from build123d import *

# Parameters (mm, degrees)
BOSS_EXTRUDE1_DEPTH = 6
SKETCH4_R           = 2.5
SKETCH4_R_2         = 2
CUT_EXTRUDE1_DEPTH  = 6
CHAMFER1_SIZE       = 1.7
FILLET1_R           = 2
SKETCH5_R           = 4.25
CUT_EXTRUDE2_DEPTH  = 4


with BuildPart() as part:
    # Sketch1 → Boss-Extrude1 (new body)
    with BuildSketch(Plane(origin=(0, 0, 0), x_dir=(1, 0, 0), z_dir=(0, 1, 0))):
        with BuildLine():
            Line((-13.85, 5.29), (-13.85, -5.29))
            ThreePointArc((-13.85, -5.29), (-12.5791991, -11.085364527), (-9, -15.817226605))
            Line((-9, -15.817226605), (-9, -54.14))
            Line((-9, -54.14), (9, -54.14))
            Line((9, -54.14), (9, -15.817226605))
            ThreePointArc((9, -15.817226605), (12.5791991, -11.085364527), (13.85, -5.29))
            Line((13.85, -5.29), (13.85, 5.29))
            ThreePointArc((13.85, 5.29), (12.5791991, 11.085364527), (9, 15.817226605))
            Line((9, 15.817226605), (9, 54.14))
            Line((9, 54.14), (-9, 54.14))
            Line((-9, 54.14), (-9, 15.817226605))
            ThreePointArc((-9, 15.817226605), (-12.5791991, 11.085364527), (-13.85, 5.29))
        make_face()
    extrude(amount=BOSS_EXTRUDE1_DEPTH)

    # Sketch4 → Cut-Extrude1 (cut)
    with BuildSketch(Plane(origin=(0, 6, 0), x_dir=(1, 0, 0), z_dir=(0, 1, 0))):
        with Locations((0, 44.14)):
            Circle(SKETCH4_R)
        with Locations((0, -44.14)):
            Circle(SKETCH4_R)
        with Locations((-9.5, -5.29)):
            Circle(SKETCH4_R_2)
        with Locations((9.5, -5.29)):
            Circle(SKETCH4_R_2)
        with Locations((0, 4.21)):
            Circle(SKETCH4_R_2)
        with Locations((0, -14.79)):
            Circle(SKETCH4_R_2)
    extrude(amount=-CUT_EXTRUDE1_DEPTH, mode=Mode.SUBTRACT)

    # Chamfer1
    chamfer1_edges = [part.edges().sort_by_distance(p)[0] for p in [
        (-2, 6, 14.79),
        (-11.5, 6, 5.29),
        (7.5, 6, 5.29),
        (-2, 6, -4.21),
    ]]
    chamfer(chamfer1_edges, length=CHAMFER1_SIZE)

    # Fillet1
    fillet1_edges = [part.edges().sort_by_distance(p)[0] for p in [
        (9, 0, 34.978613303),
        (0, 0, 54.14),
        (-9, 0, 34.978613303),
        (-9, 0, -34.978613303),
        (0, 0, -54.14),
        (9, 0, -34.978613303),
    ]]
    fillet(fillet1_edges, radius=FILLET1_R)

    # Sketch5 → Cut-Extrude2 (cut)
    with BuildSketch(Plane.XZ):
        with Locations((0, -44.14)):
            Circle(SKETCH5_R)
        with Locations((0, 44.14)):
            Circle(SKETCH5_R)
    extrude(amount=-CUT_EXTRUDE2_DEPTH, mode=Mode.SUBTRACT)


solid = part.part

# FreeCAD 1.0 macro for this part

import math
import FreeCAD as App
import Part
import Sketcher


def edges_at(feature, points):
    """Names of the edges that pass closest to the given points."""
    edges = feature.Shape.Edges
    near = lambda p: min(range(len(edges)), key=lambda i: edges[i].distToShape(Part.Vertex(*p))[0])
    return sorted({f"Edge{near(p) + 1}" for p in points})

doc = App.newDocument("Part")
params = doc.addObject("Spreadsheet::Sheet", "Params")
for row, (alias, value) in enumerate([
    ("sketch1_width", "18 mm"),
    ("sketch1_radius", "13.85 mm"),
    ("sketch1_height", "10.58 mm"),
    ("pad1_length", "6 mm"),
    ("sketch2_diameter", "5 mm"),
    ("sketch2_diameter2", "4 mm"),
    ("pocket1_length", "6 mm"),
    ("chamfer_size", "1.7 mm"),
    ("fillet_radius", "2 mm"),
    ("sketch3_diameter", "8.5 mm"),
    ("pocket2_length", "4 mm"),
], start=1):
    params.set(f"A{row}", alias)
    params.set(f"B{row}", "=" + value)
    params.setAlias(f"B{row}", alias)

body = doc.addObject("PartDesign::Body", "Body")

# Sketch on XZ plane
sketch1 = body.newObject("Sketcher::SketchObject", "Sketch")
sketch1.AttachmentSupport = (doc.getObject("XZ_Plane"), [""])
sketch1.MapMode = "FlatFace"
sketch1.addGeometry([
    Part.LineSegment(App.Vector(-14, -5, 0), App.Vector(-14, 5, 0)),  # 0
    Part.ArcOfCircle(Part.Circle(App.Vector(0, 5, 0), App.Vector(0, 0, 1), 14), math.radians(131), math.radians(180)),  # 1
    Part.LineSegment(App.Vector(-9, 16, 0), App.Vector(-9, 54, 0)),  # 2
    Part.LineSegment(App.Vector(-9, 54, 0), App.Vector(9, 54, 0)),  # 3
    Part.LineSegment(App.Vector(9, 54, 0), App.Vector(9, 16, 0)),  # 4
    Part.ArcOfCircle(Part.Circle(App.Vector(0, 5, 0), App.Vector(0, 0, 1), 14), math.radians(0), math.radians(49)),  # 5
    Part.LineSegment(App.Vector(14, 5, 0), App.Vector(14, -5, 0)),  # 6
    Part.ArcOfCircle(Part.Circle(App.Vector(0, -5, 0), App.Vector(0, 0, 1), 14), math.radians(-49), math.radians(0)),  # 7
    Part.LineSegment(App.Vector(9, -16, 0), App.Vector(9, -54, 0)),  # 8
    Part.LineSegment(App.Vector(9, -54, 0), App.Vector(-9, -54, 0)),  # 9
    Part.LineSegment(App.Vector(-9, -54, 0), App.Vector(-9, -16, 0)),  # 10
    Part.ArcOfCircle(Part.Circle(App.Vector(0, -5, 0), App.Vector(0, 0, 1), 14), math.radians(180), math.radians(229)),  # 11
], False)
sketch1.addConstraint([
    Sketcher.Constraint("Tangent", 0, 2, 1, 2),
    Sketcher.Constraint("Coincident", 1, 1, 2, 1),
    Sketcher.Constraint("Coincident", 2, 2, 3, 1),
    Sketcher.Constraint("Coincident", 3, 2, 4, 1),
    Sketcher.Constraint("Coincident", 4, 2, 5, 2),
    Sketcher.Constraint("Tangent", 5, 1, 6, 1),
    Sketcher.Constraint("Tangent", 6, 2, 7, 2),
    Sketcher.Constraint("Coincident", 7, 1, 8, 1),
    Sketcher.Constraint("Coincident", 8, 2, 9, 1),
    Sketcher.Constraint("Coincident", 9, 2, 10, 1),
    Sketcher.Constraint("Coincident", 10, 2, 11, 2),
    Sketcher.Constraint("Tangent", 11, 1, 0, 1),
    Sketcher.Constraint("Vertical", 0),
    Sketcher.Constraint("Vertical", 2),
    Sketcher.Constraint("Horizontal", 3),
    Sketcher.Constraint("Vertical", 4),
    Sketcher.Constraint("Vertical", 6),
    Sketcher.Constraint("Vertical", 8),
    Sketcher.Constraint("Horizontal", 9),
    Sketcher.Constraint("Vertical", 10),
    Sketcher.Constraint("Coincident", 5, 3, 1, 3),
    Sketcher.Constraint("Coincident", 11, 3, 7, 3),
    Sketcher.Constraint("Equal", 1, 5),
    Sketcher.Constraint("Equal", 5, 7),
    Sketcher.Constraint("Symmetric", 1, 3, 7, 3, -1, 1),
    Sketcher.Constraint("Symmetric", 2, 2, 8, 2, -1, 1),
    Sketcher.Constraint("Horizontal", 1, 1, 4, 2),
    Sketcher.Constraint("Horizontal", 7, 1, 10, 2),
    Sketcher.Constraint("DistanceX", 3, 1, 3, 2, 18.0),
    Sketcher.Constraint("Radius", 1, 13.85),
    Sketcher.Constraint("DistanceY", 0, 1, 0, 2, 10.58),
    Sketcher.Constraint("DistanceY", -1, 1, 2, 2, 54.14),
])
sketch1.setExpression("Constraints[28]", "Params.sketch1_width")
sketch1.setExpression("Constraints[29]", "Params.sketch1_radius")
sketch1.setExpression("Constraints[30]", "Params.sketch1_height")
pad1 = body.newObject("PartDesign::Pad", "Pad")
pad1.Profile = sketch1
pad1.setExpression("Length", "Params.pad1_length")
pad1.Reversed = True

# Sketch on XZ plane
sketch2 = body.newObject("Sketcher::SketchObject", "Sketch001")
sketch2.AttachmentSupport = (doc.getObject("XZ_Plane"), [""])
sketch2.MapMode = "FlatFace"
sketch2.AttachmentOffset = App.Placement(App.Vector(0, 0, -6), App.Rotation())
sketch2.addGeometry([
    Part.Circle(App.Vector(0, -44.1, 0), App.Vector(0, 0, 1), 2.5),  # 0
    Part.Circle(App.Vector(0, 44.1, 0), App.Vector(0, 0, 1), 2.5),  # 1
    Part.Circle(App.Vector(-9.5, 5.3, 0), App.Vector(0, 0, 1), 2),  # 2
    Part.Circle(App.Vector(9.5, 5.3, 0), App.Vector(0, 0, 1), 2),  # 3
    Part.Circle(App.Vector(0, -4.2, 0), App.Vector(0, 0, 1), 2),  # 4
    Part.Circle(App.Vector(0, 14.8, 0), App.Vector(0, 0, 1), 2),  # 5
], False)
sketch2.addConstraint([
    Sketcher.Constraint("Equal", 0, 1),
    Sketcher.Constraint("Equal", 2, 3),
    Sketcher.Constraint("Equal", 3, 4),
    Sketcher.Constraint("Equal", 4, 5),
    Sketcher.Constraint("Symmetric", 0, 3, 1, 3, -1, 1),
    Sketcher.Constraint("Symmetric", 2, 3, 3, 3, -2),
    Sketcher.Constraint("PointOnObject", 0, 3, -2),
    Sketcher.Constraint("PointOnObject", 4, 3, -2),
    Sketcher.Constraint("PointOnObject", 5, 3, -2),
    Sketcher.Constraint("Diameter", 0, 5.0),
    Sketcher.Constraint("Diameter", 2, 4.0),
    Sketcher.Constraint("DistanceX", 2, 3, 3, 3, 19.0),
    Sketcher.Constraint("DistanceY", 4, 3, 5, 3, 19.0),
    Sketcher.Constraint("DistanceY", 4, 3, 2, 3, 9.5),
    Sketcher.Constraint("DistanceY", 0, 3, -1, 1, 44.14),
    Sketcher.Constraint("DistanceY", -1, 1, 2, 3, 5.29),
])
sketch2.setExpression("Constraints[9]", "Params.sketch2_diameter")
sketch2.setExpression("Constraints[10]", "Params.sketch2_diameter2")
pocket1 = body.newObject("PartDesign::Pocket", "Pocket")
pocket1.Profile = sketch2
pocket1.setExpression("Length", "Params.pocket1_length")
pocket1.Reversed = True
doc.recompute()

chamfer = body.newObject("PartDesign::Chamfer", "Chamfer")
chamfer.Base = (pocket1, edges_at(pocket1, [
    (-2, 6, 14.79),
    (-11.5, 6, 5.29),
    (7.5, 6, 5.29),
    (-2, 6, -4.21),
]))
chamfer.setExpression("Size", "Params.chamfer_size")
doc.recompute()

fillet = body.newObject("PartDesign::Fillet", "Fillet")
fillet.Base = (chamfer, edges_at(chamfer, [
    (9, 0, 34.979),
    (0, 0, 54.14),
    (-9, 0, 34.979),
    (-9, 0, -34.979),
    (0, 0, -54.14),
    (9, 0, -34.979),
]))
fillet.setExpression("Radius", "Params.fillet_radius")

# Sketch on XZ plane
sketch3 = body.newObject("Sketcher::SketchObject", "Sketch002")
sketch3.AttachmentSupport = (doc.getObject("XZ_Plane"), [""])
sketch3.MapMode = "FlatFace"
sketch3.addGeometry([
    Part.Circle(App.Vector(0, -44.1, 0), App.Vector(0, 0, 1), 4.2),
    Part.Circle(App.Vector(0, 44.1, 0), App.Vector(0, 0, 1), 4.2),
], False)
sketch3.addConstraint([
    Sketcher.Constraint("Equal", 0, 1),
    Sketcher.Constraint("Symmetric", 0, 3, 1, 3, -1, 1),
    Sketcher.Constraint("PointOnObject", 0, 3, -2),
    Sketcher.Constraint("Diameter", 0, 8.5),
    Sketcher.Constraint("DistanceY", 0, 3, -1, 1, 44.14),
])
sketch3.setExpression("Constraints[3]", "Params.sketch3_diameter")
pocket2 = body.newObject("PartDesign::Pocket", "Pocket001")
pocket2.Profile = sketch3
pocket2.setExpression("Length", "Params.pocket2_length")

doc.recompute()
